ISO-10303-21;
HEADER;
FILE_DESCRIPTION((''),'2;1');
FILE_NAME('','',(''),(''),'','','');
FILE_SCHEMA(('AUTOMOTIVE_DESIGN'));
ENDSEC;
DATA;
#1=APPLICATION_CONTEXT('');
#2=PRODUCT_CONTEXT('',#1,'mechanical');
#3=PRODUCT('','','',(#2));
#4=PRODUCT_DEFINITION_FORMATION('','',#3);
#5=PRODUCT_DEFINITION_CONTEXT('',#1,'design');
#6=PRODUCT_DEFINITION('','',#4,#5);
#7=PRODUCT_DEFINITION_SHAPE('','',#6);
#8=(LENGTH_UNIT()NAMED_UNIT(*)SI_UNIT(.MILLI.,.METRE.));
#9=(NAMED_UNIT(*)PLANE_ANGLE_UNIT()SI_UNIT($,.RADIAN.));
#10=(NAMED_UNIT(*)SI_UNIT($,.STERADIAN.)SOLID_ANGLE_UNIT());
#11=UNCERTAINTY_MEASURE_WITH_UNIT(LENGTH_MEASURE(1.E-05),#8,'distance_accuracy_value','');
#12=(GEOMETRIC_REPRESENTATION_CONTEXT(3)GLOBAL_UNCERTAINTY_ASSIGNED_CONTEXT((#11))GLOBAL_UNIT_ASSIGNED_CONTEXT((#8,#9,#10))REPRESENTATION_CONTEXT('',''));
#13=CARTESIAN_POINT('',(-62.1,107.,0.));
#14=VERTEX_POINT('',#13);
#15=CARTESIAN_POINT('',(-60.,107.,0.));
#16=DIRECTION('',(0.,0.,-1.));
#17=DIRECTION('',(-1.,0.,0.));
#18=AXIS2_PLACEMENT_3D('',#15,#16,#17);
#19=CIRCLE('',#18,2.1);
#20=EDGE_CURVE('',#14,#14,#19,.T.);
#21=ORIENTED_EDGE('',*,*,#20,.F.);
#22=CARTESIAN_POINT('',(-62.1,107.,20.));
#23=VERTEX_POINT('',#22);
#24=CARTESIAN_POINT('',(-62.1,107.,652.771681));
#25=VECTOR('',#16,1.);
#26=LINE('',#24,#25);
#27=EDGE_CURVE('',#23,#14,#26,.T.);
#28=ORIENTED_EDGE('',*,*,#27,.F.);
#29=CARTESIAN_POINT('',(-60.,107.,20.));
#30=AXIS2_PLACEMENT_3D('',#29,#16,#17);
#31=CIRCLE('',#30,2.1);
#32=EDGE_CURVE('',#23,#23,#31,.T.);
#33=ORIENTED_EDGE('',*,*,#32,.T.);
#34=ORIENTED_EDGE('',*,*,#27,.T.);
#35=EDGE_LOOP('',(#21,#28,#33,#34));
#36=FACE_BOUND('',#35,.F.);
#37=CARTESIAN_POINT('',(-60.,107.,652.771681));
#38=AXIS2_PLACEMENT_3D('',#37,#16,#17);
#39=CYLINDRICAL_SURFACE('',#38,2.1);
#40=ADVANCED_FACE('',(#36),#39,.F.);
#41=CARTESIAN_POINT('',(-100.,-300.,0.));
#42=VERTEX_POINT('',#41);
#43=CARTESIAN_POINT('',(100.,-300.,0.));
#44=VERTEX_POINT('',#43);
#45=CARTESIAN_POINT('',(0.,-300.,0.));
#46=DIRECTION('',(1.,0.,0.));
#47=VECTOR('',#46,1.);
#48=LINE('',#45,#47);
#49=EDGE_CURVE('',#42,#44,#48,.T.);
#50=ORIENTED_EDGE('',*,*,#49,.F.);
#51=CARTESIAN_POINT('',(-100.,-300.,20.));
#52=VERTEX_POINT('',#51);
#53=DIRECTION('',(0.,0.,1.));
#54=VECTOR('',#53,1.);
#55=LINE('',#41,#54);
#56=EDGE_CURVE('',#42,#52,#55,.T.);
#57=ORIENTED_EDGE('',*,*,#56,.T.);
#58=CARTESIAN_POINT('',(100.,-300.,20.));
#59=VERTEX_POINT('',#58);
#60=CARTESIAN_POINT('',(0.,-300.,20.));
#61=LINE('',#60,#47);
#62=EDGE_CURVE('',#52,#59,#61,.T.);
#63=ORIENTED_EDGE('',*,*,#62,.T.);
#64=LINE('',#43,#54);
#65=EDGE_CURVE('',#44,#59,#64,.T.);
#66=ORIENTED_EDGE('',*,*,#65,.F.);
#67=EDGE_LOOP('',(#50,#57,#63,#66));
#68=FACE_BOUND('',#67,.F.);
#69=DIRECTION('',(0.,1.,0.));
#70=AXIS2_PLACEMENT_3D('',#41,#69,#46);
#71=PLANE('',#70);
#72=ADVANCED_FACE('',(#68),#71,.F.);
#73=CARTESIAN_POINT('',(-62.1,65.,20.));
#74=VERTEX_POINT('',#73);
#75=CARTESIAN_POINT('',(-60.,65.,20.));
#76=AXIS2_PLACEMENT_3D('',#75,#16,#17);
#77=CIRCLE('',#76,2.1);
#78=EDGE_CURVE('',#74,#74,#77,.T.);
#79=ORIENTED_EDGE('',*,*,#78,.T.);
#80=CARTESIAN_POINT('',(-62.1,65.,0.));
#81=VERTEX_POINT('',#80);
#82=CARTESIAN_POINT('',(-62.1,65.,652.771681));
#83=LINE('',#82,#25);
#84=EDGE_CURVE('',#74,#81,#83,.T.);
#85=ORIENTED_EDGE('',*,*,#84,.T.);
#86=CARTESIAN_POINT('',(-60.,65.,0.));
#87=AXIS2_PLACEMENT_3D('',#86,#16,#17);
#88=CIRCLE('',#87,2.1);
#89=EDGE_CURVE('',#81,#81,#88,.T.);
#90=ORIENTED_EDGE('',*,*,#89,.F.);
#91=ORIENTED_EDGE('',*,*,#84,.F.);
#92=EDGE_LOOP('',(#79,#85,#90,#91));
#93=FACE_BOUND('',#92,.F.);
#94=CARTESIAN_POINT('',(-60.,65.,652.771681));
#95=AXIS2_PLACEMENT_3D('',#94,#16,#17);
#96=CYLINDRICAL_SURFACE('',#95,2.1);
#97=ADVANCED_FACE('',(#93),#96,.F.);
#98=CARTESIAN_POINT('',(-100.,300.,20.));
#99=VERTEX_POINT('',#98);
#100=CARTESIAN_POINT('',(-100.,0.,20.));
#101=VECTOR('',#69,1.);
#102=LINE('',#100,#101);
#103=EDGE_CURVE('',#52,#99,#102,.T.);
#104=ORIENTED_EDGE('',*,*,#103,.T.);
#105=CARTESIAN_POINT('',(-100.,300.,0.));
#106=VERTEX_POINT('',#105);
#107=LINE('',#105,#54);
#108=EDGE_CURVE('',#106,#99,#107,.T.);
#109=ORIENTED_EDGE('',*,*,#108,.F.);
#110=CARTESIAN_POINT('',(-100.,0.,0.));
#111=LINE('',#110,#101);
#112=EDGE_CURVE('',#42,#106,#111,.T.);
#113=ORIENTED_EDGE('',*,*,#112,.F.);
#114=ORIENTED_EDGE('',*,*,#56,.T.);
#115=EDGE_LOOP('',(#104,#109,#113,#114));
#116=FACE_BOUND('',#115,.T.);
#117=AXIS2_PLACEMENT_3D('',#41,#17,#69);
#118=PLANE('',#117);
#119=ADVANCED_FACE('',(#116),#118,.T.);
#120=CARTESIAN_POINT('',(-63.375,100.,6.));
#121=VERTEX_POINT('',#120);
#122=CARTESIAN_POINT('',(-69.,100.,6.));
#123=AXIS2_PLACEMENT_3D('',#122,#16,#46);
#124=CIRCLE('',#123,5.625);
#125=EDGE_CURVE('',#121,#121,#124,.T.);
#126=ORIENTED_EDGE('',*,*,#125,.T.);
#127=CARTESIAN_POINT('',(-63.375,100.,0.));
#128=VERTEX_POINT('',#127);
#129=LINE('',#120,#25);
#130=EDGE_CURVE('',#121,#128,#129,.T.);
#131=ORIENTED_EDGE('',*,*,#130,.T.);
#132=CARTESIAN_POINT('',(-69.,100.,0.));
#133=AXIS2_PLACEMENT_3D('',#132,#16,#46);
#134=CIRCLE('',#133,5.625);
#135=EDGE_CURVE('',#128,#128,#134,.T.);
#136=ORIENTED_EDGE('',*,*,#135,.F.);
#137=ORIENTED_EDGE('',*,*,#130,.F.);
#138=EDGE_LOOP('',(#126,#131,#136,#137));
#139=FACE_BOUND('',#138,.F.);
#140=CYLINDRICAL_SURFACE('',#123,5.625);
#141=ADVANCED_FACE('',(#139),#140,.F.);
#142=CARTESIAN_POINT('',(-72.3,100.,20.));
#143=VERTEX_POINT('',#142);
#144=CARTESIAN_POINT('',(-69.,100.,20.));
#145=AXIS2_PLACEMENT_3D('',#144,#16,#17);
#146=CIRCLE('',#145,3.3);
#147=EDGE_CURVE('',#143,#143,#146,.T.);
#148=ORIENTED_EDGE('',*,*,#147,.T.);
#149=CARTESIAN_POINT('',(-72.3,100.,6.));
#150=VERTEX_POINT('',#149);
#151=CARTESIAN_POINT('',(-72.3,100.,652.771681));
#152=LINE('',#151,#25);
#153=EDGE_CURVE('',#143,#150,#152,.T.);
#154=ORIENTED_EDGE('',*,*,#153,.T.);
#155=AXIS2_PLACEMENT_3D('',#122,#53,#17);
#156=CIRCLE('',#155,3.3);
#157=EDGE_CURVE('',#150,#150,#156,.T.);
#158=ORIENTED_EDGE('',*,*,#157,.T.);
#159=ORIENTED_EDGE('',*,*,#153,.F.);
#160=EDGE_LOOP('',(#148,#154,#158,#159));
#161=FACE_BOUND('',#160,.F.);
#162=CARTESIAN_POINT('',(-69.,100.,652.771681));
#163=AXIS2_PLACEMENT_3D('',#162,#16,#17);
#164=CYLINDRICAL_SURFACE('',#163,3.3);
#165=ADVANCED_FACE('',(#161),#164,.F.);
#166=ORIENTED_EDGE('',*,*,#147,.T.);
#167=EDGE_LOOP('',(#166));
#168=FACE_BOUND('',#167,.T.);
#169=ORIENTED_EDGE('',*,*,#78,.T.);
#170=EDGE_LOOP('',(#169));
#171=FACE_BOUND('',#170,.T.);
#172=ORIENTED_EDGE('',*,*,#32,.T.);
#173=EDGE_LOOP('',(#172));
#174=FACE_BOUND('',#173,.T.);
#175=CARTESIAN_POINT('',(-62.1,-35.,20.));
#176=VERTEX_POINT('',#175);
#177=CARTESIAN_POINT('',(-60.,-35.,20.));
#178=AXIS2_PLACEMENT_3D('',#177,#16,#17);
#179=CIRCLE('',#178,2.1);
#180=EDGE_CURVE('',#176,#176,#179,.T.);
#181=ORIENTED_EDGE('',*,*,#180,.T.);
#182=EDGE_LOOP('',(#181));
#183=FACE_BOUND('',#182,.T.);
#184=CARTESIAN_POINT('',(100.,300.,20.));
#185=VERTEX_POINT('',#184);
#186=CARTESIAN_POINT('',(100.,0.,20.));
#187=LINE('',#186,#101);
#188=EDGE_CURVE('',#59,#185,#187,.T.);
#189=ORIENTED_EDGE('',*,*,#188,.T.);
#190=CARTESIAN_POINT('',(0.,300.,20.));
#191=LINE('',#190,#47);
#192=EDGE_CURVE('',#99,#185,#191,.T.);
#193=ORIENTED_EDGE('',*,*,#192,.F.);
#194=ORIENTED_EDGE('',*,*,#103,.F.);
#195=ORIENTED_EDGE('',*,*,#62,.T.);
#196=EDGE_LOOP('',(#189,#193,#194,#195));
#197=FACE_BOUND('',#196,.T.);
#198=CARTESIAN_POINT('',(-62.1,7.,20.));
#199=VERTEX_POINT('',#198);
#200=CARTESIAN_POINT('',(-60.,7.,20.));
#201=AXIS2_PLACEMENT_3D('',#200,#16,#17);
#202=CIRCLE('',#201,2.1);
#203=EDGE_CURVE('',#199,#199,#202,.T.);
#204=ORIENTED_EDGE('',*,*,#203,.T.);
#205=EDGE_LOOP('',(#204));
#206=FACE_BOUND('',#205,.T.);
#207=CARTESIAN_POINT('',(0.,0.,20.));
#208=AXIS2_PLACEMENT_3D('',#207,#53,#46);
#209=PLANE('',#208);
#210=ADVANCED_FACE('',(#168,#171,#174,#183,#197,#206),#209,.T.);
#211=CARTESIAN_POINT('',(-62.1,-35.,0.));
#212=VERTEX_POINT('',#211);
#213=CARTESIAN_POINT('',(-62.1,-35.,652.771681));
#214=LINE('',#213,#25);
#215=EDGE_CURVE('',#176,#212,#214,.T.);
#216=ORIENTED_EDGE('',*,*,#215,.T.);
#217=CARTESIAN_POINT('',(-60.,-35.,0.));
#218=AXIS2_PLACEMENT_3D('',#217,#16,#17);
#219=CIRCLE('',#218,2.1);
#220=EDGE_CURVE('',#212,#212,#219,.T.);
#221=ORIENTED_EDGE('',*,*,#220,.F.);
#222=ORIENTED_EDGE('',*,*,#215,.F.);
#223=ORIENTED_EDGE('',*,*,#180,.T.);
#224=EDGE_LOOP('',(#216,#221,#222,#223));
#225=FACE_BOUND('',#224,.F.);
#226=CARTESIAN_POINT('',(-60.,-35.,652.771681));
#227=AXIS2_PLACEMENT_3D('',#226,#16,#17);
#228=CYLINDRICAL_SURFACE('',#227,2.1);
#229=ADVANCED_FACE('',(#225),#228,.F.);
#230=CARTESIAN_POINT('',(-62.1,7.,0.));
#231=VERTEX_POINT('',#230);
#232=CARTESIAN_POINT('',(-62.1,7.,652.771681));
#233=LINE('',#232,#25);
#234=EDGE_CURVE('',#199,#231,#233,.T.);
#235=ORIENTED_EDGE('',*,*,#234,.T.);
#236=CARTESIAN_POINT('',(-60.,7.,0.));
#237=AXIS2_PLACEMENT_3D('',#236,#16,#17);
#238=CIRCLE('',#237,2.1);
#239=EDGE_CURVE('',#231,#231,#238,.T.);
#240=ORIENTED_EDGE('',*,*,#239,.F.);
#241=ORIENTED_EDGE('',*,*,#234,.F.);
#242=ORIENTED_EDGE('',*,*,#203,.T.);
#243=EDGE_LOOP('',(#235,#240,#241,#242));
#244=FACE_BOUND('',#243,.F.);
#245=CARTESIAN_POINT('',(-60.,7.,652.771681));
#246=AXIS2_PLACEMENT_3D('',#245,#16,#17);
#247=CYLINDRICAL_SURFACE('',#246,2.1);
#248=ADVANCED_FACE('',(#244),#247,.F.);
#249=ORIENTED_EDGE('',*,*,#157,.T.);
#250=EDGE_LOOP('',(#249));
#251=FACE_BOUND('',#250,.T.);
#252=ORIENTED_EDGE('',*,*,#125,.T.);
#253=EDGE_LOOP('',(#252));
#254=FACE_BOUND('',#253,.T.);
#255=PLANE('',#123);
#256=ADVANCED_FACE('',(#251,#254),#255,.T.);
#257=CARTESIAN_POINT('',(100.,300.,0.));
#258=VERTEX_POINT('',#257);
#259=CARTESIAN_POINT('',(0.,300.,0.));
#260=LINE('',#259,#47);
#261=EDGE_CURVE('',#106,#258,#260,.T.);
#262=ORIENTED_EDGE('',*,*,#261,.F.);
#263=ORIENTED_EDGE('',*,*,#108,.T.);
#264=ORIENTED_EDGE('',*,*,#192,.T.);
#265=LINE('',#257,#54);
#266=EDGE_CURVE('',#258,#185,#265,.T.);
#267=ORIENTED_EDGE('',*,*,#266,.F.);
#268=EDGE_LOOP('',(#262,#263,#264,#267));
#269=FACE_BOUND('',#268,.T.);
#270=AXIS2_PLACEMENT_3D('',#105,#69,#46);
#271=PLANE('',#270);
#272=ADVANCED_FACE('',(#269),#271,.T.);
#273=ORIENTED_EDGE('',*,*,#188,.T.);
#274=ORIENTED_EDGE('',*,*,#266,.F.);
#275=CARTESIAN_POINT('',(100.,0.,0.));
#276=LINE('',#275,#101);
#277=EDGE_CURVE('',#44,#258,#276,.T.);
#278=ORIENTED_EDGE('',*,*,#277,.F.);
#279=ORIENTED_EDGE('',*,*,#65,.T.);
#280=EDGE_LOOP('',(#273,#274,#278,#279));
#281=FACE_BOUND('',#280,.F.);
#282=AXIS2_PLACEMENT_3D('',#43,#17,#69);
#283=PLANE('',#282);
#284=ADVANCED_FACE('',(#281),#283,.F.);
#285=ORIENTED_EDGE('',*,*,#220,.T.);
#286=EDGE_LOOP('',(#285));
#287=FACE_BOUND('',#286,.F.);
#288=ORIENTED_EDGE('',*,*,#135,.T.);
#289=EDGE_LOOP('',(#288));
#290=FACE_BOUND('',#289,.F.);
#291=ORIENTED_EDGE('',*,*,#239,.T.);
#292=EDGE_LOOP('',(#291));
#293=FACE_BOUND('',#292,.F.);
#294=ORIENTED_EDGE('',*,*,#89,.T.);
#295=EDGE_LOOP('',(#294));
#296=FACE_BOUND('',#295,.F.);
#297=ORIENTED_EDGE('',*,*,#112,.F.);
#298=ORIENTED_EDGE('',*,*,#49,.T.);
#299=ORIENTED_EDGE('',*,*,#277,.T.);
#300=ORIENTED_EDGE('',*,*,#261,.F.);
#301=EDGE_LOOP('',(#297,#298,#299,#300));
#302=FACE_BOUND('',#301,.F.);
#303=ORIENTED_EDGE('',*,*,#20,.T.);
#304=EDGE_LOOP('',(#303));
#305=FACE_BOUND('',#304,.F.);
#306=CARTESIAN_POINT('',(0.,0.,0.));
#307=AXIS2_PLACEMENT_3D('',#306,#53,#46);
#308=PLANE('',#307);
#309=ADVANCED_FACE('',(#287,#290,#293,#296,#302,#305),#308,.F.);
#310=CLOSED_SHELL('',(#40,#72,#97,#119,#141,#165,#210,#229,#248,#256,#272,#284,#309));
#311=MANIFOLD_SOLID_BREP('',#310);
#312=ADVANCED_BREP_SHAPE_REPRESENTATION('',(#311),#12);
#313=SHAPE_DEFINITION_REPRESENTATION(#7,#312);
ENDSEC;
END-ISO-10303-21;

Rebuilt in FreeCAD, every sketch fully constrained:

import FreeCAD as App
import Part
import Sketcher

V = App.Vector


def add_polygon(sketch, points):
    """Adds a closed chain of lines whose ends are joined by coincident constraints."""
    first, n = sketch.GeometryCount, len(points)
    for a, b in zip(points, points[1:] + points[:1]):
        sketch.addGeometry(Part.LineSegment(App.Vector(*a, 0), App.Vector(*b, 0)), False)
    for i in range(n):
        sketch.addConstraint(Sketcher.Constraint("Coincident", first + i, 2, first + (i + 1) % n, 1))

doc = App.newDocument("Part")
body = doc.addObject("PartDesign::Body", "Body")

# Sketch on XY plane
sketch1 = doc.addObject("Sketcher::SketchObject", "Sketch")
body.addObject(sketch1)
sketch1.AttachmentSupport = (doc.XY_Plane, [""])
sketch1.MapMode = "FlatFace"
add_polygon(sketch1, [(-100, 300), (-100, -300), (100, -300), (100, 300)])  # lines 0-3
sketch1.addConstraint(Sketcher.Constraint("Vertical", 0))
sketch1.addConstraint(Sketcher.Constraint("Horizontal", 1))
sketch1.addConstraint(Sketcher.Constraint("Vertical", 2))
sketch1.addConstraint(Sketcher.Constraint("Horizontal", 3))
sketch1.addConstraint(Sketcher.Constraint("Symmetric", 0, 2, 2, 2, -1, 1))
sketch1.addConstraint(Sketcher.Constraint("DistanceX", 1, 1, 1, 2, 200.0))
sketch1.addConstraint(Sketcher.Constraint("DistanceY", 0, 2, 0, 1, 600.0))
pad1 = doc.addObject("PartDesign::Pad", "Pad")
body.addObject(pad1)
pad1.Profile = sketch1
pad1.Length = 20

# Sketch on XY plane
sketch2 = doc.addObject("Sketcher::SketchObject", "Sketch001")
body.addObject(sketch2)
sketch2.AttachmentSupport = (doc.XY_Plane, [""])
sketch2.MapMode = "FlatFace"
sketch2.AttachmentOffset = App.Placement(V(0, 0, 20), App.Rotation())
sketch2.addGeometry(Part.Circle(V(-60, 107, 0), V(0, 0, 1), 2.1), False)
sketch2.addGeometry(Part.Circle(V(-60, 65, 0), V(0, 0, 1), 2.1), False)
sketch2.addGeometry(Part.Circle(V(-60, 7, 0), V(0, 0, 1), 2.1), False)
sketch2.addGeometry(Part.Circle(V(-60, -35, 0), V(0, 0, 1), 2.1), False)
sketch2.addConstraint(Sketcher.Constraint("Equal", 0, 1))
sketch2.addConstraint(Sketcher.Constraint("Equal", 1, 2))
sketch2.addConstraint(Sketcher.Constraint("Equal", 2, 3))
sketch2.addConstraint(Sketcher.Constraint("Vertical", 0, 3, 1, 3))
sketch2.addConstraint(Sketcher.Constraint("Vertical", 1, 3, 2, 3))
sketch2.addConstraint(Sketcher.Constraint("Vertical", 2, 3, 3, 3))
sketch2.addConstraint(Sketcher.Constraint("Diameter", 0, 4.2))
sketch2.addConstraint(Sketcher.Constraint("DistanceX", 0, 3, -1, 1, 60.0))
sketch2.addConstraint(Sketcher.Constraint("DistanceY", -1, 1, 0, 3, 107.0))
sketch2.addConstraint(Sketcher.Constraint("DistanceY", -1, 1, 1, 3, 65.0))
sketch2.addConstraint(Sketcher.Constraint("DistanceY", -1, 1, 2, 3, 7.0))
sketch2.addConstraint(Sketcher.Constraint("DistanceY", 3, 3, -1, 1, 35.0))
doc.recompute()
hole = doc.addObject("PartDesign::Hole", "Hole")
body.addObject(hole)
hole.Profile = sketch2
hole.ThreadType = "None"
hole.Diameter = 4.2
hole.DepthType = "ThroughAll"

# Sketch on XY plane
sketch3 = doc.addObject("Sketcher::SketchObject", "Sketch002")
body.addObject(sketch3)
sketch3.AttachmentSupport = (doc.XY_Plane, [""])
sketch3.MapMode = "FlatFace"
sketch3.AttachmentOffset = App.Placement(V(0, 0, 20), App.Rotation())
sketch3.addGeometry(Part.Circle(V(-69, 100, 0), V(0, 0, 1), 3.3), False)
sketch3.addConstraint(Sketcher.Constraint("Diameter", 0, 6.6))
sketch3.addConstraint(Sketcher.Constraint("DistanceX", 0, 3, -1, 1, 69.0))
sketch3.addConstraint(Sketcher.Constraint("DistanceY", -1, 1, 0, 3, 100.0))
doc.recompute()
hole2 = doc.addObject("PartDesign::Hole", "Hole001")
body.addObject(hole2)
hole2.Profile = sketch3
hole2.ThreadType = "None"
hole2.Diameter = 6.6
hole2.DepthType = "ThroughAll"

# Sketch on XY plane
sketch4 = doc.addObject("Sketcher::SketchObject", "Sketch003")
body.addObject(sketch4)
sketch4.AttachmentSupport = (doc.XY_Plane, [""])
sketch4.MapMode = "FlatFace"
sketch4.addGeometry(Part.Circle(V(-69, 100, 0), V(0, 0, 1), 3.3), False)
sketch4.addConstraint(Sketcher.Constraint("Diameter", 0, 6.6))
sketch4.addConstraint(Sketcher.Constraint("DistanceX", 0, 3, -1, 1, 69.0))
sketch4.addConstraint(Sketcher.Constraint("DistanceY", -1, 1, 0, 3, 100.0))
doc.recompute()
hole3 = doc.addObject("PartDesign::Hole", "Hole002")
body.addObject(hole3)
hole3.Profile = sketch4
hole3.ThreadType = "None"
hole3.Diameter = 6.6
hole3.DepthType = "ThroughAll"
hole3.HoleCutType = "Counterbore"
hole3.HoleCutDiameter = 11.25
hole3.HoleCutDepth = 6
hole3.Reversed = True

doc.recompute()
